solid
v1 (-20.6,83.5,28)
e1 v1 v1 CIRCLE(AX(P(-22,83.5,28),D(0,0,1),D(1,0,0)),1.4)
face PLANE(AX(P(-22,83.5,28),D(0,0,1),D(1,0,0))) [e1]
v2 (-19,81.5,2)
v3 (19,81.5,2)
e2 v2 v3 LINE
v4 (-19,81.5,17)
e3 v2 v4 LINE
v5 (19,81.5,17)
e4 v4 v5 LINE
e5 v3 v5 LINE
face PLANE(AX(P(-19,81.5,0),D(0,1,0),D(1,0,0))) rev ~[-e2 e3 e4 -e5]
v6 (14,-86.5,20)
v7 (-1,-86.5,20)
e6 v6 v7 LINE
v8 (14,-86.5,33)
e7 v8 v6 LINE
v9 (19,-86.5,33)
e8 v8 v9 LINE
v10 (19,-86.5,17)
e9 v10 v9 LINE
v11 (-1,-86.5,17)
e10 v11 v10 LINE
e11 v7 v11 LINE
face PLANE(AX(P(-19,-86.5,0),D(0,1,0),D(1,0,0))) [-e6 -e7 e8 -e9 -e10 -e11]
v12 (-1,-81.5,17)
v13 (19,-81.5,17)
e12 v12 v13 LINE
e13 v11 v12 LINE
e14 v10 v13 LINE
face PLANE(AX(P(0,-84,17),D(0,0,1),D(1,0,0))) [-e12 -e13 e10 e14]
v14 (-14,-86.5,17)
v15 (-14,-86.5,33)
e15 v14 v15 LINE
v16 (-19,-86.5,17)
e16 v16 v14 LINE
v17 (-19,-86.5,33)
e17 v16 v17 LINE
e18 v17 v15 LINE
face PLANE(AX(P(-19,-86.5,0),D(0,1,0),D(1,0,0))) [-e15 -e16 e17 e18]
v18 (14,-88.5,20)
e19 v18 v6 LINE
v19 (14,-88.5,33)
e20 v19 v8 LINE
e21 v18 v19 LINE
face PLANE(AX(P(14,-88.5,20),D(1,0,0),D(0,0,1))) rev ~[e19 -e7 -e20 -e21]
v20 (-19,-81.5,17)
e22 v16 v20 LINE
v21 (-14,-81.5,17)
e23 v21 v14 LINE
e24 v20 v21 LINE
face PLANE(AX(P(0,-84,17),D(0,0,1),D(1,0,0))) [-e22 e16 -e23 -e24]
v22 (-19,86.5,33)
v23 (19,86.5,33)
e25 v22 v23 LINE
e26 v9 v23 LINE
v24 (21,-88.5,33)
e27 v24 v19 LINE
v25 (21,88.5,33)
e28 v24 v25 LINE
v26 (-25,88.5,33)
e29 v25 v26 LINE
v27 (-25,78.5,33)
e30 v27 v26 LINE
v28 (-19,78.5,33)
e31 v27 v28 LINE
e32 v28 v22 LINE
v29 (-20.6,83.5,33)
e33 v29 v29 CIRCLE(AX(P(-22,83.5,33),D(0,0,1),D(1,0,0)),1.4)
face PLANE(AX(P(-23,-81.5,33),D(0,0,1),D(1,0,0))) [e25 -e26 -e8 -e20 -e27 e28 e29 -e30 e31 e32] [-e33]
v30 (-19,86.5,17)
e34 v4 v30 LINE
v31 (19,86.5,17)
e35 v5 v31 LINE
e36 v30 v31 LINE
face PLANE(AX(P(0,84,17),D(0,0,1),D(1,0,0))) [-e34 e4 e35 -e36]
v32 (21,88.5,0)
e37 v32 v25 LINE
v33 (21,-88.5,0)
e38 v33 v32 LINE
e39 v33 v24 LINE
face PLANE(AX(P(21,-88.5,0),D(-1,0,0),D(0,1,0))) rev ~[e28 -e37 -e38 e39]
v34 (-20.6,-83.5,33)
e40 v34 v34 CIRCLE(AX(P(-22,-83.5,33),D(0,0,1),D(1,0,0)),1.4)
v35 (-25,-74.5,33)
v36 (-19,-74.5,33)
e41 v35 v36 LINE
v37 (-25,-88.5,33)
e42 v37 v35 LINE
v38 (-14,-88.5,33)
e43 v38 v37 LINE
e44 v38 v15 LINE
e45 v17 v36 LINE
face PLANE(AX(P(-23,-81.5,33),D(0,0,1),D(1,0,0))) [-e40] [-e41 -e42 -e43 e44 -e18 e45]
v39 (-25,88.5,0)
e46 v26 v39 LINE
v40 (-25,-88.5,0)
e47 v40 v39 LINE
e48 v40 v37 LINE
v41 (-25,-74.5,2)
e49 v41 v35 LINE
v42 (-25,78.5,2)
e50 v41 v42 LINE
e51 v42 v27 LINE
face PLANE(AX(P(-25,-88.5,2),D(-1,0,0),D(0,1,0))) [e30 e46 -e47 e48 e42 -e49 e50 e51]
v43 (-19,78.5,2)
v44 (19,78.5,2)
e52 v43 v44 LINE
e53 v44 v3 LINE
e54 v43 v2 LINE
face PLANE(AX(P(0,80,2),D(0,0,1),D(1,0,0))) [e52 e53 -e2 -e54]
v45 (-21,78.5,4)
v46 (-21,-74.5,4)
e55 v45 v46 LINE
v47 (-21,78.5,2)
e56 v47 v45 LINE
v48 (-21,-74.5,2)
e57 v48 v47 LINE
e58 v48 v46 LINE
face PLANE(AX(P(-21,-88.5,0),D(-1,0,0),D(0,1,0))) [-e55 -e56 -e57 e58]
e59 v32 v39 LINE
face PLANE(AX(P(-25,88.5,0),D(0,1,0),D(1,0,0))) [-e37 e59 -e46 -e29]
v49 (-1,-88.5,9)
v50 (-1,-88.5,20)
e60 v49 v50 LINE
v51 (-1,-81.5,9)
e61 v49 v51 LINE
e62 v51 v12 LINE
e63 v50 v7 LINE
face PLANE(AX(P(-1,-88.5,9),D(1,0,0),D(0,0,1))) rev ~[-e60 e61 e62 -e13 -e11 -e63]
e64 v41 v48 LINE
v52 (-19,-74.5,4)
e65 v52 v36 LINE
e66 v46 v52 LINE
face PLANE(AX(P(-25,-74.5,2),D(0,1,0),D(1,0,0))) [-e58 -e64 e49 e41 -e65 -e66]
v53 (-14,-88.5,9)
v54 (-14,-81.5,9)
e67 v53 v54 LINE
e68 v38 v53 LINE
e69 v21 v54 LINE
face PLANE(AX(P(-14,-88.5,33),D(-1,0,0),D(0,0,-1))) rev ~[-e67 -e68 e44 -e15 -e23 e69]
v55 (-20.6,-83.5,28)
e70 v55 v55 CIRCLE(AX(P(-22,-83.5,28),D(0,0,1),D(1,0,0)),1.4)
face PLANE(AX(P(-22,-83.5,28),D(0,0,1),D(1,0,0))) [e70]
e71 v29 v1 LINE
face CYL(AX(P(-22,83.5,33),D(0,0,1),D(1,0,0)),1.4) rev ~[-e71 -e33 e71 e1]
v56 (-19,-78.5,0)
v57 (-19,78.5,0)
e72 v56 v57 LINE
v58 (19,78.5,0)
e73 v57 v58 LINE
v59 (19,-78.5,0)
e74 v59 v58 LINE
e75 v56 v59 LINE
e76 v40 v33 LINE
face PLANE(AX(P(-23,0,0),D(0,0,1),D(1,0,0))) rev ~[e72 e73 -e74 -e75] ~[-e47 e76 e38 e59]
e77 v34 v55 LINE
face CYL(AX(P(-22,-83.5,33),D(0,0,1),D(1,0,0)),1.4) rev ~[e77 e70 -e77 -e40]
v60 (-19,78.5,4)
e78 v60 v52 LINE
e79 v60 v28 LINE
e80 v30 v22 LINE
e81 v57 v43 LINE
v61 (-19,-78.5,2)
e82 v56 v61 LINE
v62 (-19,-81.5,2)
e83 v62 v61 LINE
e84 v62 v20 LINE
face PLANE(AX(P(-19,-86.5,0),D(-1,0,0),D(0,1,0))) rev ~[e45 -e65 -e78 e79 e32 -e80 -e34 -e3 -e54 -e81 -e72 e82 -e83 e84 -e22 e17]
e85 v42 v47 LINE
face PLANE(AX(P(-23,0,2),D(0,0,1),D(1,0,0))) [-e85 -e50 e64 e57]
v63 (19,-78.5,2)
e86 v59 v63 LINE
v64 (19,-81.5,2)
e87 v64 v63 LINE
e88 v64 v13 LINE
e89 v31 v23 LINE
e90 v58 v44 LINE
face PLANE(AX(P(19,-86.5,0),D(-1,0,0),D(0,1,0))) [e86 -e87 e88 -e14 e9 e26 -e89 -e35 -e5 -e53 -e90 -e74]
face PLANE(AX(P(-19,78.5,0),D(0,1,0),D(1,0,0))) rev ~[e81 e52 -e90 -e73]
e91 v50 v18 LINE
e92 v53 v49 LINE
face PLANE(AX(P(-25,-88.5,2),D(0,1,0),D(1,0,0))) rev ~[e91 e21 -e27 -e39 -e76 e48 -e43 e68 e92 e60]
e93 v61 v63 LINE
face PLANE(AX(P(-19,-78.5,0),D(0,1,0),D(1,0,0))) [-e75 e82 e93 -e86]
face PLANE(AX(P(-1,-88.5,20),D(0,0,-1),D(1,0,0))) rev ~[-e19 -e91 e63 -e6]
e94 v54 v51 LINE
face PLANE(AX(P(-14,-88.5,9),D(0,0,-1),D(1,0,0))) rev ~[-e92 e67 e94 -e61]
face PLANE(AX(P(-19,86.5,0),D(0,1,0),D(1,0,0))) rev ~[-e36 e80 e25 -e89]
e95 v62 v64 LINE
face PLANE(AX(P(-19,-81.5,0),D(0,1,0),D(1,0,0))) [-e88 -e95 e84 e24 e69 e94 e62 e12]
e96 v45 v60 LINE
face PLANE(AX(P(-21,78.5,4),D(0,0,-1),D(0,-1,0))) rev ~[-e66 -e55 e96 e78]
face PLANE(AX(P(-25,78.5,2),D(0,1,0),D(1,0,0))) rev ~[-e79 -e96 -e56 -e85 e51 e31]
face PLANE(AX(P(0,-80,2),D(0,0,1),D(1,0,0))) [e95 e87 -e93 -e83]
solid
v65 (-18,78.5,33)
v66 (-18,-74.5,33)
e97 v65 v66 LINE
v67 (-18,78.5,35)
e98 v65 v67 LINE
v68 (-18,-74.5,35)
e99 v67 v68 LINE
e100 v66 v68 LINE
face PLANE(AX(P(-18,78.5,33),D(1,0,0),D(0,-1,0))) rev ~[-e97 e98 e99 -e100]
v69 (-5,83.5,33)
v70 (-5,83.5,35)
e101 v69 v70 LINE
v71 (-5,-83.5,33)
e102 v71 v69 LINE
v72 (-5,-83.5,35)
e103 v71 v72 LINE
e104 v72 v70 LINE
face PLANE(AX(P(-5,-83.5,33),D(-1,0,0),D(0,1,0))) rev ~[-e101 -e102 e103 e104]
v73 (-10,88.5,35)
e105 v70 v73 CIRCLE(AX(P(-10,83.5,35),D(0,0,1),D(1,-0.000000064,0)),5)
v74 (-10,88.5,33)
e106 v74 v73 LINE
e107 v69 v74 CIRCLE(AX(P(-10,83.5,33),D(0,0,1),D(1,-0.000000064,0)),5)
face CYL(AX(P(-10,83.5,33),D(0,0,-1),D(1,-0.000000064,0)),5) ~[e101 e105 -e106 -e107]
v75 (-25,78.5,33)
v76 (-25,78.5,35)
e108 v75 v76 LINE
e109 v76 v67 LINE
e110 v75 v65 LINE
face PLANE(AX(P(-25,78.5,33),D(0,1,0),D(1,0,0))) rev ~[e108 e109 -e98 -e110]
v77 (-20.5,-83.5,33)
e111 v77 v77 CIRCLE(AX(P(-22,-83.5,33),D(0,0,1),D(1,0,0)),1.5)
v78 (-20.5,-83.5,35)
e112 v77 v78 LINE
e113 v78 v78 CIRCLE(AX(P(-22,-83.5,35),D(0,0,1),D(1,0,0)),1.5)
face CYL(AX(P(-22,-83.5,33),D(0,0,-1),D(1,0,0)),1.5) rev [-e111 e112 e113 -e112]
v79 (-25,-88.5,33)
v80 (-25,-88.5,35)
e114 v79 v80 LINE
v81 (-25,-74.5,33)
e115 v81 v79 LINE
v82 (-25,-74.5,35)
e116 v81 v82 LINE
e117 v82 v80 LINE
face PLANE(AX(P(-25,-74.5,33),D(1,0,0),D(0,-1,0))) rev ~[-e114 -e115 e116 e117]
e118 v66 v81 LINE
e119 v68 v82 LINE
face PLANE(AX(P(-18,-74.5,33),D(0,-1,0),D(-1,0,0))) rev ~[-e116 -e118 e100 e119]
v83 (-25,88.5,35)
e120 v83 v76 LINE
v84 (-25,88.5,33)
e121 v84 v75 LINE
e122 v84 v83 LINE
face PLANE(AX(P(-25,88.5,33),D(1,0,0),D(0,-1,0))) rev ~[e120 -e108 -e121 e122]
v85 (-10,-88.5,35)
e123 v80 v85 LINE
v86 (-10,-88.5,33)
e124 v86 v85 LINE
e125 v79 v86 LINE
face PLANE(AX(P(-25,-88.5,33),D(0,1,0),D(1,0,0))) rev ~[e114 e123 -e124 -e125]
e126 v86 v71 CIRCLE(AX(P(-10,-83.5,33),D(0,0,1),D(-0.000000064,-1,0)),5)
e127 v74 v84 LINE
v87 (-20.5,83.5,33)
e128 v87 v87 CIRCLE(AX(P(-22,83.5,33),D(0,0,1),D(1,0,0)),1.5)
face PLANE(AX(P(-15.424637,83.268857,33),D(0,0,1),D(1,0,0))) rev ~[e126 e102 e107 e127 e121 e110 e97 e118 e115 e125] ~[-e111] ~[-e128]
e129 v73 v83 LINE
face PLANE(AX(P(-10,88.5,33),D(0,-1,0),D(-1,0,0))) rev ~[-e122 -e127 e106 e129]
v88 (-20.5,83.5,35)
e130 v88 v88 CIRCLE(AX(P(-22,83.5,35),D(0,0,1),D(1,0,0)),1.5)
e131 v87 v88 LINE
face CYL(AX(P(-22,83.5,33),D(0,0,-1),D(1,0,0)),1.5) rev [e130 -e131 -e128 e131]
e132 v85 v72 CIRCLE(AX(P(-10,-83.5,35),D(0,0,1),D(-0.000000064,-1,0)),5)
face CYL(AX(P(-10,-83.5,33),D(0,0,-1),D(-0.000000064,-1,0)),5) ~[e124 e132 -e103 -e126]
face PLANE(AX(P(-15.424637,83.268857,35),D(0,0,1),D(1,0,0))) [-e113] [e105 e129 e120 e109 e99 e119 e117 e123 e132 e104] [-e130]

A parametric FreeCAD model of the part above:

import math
import FreeCAD as App
import Part
import Sketcher

V = App.Vector


def add_polygon(sketch, points):
    """Adds a closed chain of lines whose ends are joined by coincident constraints."""
    first, n = sketch.GeometryCount, len(points)
    for a, b in zip(points, points[1:] + points[:1]):
        sketch.addGeometry(Part.LineSegment(App.Vector(*a, 0), App.Vector(*b, 0)), False)
    for i in range(n):
        sketch.addConstraint(Sketcher.Constraint("Coincident", first + i, 2, first + (i + 1) % n, 1))

doc = App.newDocument("Part")
body = doc.addObject("PartDesign::Body", "Body")

# Sketch on XY plane
sketch1 = body.newObject("Sketcher::SketchObject", "Sketch")
sketch1.AttachmentSupport = (doc.getObject("XY_Plane"), [""])
sketch1.MapMode = "FlatFace"
add_polygon(sketch1, [(-21, 88), (-21, -88), (21, -88), (21, 88)])  # lines 0-3
add_polygon(sketch1, [(19, -86), (-19, -86), (-19, 86), (19, 86)])  # lines 4-7
sketch1.addConstraint(Sketcher.Constraint("Vertical", 0))
sketch1.addConstraint(Sketcher.Constraint("Horizontal", 1))
sketch1.addConstraint(Sketcher.Constraint("Vertical", 2))
sketch1.addConstraint(Sketcher.Constraint("Horizontal", 3))
sketch1.addConstraint(Sketcher.Constraint("Horizontal", 4))
sketch1.addConstraint(Sketcher.Constraint("Vertical", 5))
sketch1.addConstraint(Sketcher.Constraint("Horizontal", 6))
sketch1.addConstraint(Sketcher.Constraint("Vertical", 7))
sketch1.addConstraint(Sketcher.Constraint("Symmetric", 0, 2, 2, 2, -1, 1))
sketch1.addConstraint(Sketcher.Constraint("Symmetric", 4, 2, 6, 2, -1, 1))
sketch1.addConstraint(Sketcher.Constraint("DistanceX", 1, 1, 1, 2, 42.0))
sketch1.addConstraint(Sketcher.Constraint("DistanceX", 4, 2, 4, 1, 38.0))
sketch1.addConstraint(Sketcher.Constraint("DistanceY", 0, 2, 0, 1, 177.0))
sketch1.addConstraint(Sketcher.Constraint("DistanceY", 5, 1, 5, 2, 173.0))
pad1 = body.newObject("PartDesign::Pad", "Pad")
pad1.Profile = sketch1
pad1.Length = 33

# Sketch on YZ plane
sketch2 = body.newObject("Sketcher::SketchObject", "Sketch001")
sketch2.AttachmentSupport = (doc.getObject("YZ_Plane"), [""])
sketch2.MapMode = "FlatFace"
sketch2.AttachmentOffset = App.Placement(V(0, 0, -21), App.Rotation())
add_polygon(sketch2, [(78, 33), (78, 4), (-74, 4), (-74, 33)])  # lines 0-3
sketch2.addConstraint(Sketcher.Constraint("Vertical", 0))
sketch2.addConstraint(Sketcher.Constraint("Horizontal", 1))
sketch2.addConstraint(Sketcher.Constraint("Vertical", 2))
sketch2.addConstraint(Sketcher.Constraint("Horizontal", 3))
sketch2.addConstraint(Sketcher.Constraint("DistanceX", 1, 2, 1, 1, 153.0))
sketch2.addConstraint(Sketcher.Constraint("DistanceY", 0, 2, 0, 1, 29.0))
sketch2.addConstraint(Sketcher.Constraint("DistanceY", -1, 1, 0, 2, 4.0))
sketch2.addConstraint(Sketcher.Constraint("DistanceX", -1, 1, 0, 2, 78.5))
pocket1 = body.newObject("PartDesign::Pocket", "Pocket")
pocket1.Profile = sketch2
pocket1.Length = 5.8
pocket1.Reversed = True

# Sketch on XY plane
sketch3 = body.newObject("Sketcher::SketchObject", "Sketch002")
sketch3.AttachmentSupport = (doc.getObject("XY_Plane"), [""])
sketch3.MapMode = "FlatFace"
add_polygon(sketch3, [(-19, 86), (-19, 82), (19, 82), (19, 86)])  # lines 0-3
add_polygon(sketch3, [(-19, -82), (-19, -86), (19, -86), (19, -82)])  # lines 4-7
sketch3.addConstraint(Sketcher.Constraint("Vertical", 0))
sketch3.addConstraint(Sketcher.Constraint("Horizontal", 1))
sketch3.addConstraint(Sketcher.Constraint("Vertical", 2))
sketch3.addConstraint(Sketcher.Constraint("Horizontal", 3))
sketch3.addConstraint(Sketcher.Constraint("Vertical", 4))
sketch3.addConstraint(Sketcher.Constraint("Horizontal", 5))
sketch3.addConstraint(Sketcher.Constraint("Vertical", 6))
sketch3.addConstraint(Sketcher.Constraint("Horizontal", 7))
sketch3.addConstraint(Sketcher.Constraint("Symmetric", 2, 2, 4, 2, -1, 1))
sketch3.addConstraint(Sketcher.Constraint("Symmetric", 0, 2, 6, 2, -1, 1))
sketch3.addConstraint(Sketcher.Constraint("Vertical", 3, 2, 4, 2))
sketch3.addConstraint(Sketcher.Constraint("DistanceX", 1, 1, 1, 2, 38.0))
sketch3.addConstraint(Sketcher.Constraint("DistanceY", 0, 2, 0, 1, 5.0))
sketch3.addConstraint(Sketcher.Constraint("DistanceY", 4, 2, 0, 2, 168.0))
pad2 = body.newObject("PartDesign::Pad", "Pad001")
pad2.Profile = sketch3
pad2.Length = 17

# Sketch on XY plane
sketch4 = body.newObject("Sketcher::SketchObject", "Sketch003")
sketch4.AttachmentSupport = (doc.getObject("XY_Plane"), [""])
sketch4.MapMode = "FlatFace"
add_polygon(sketch4, [(-25, 88.5), (-25, -88.5), (-21, -88.5), (-21, 88.5)])  # lines 0-3
add_polygon(sketch4, [(-19, 81.5), (-19, 78.5), (19, 78.5), (19, 81.5)])  # lines 4-7
add_polygon(sketch4, [(-19, -78.5), (-19, -81.5), (19, -81.5), (19, -78.5)])  # lines 8-11
sketch4.addConstraint(Sketcher.Constraint("Vertical", 0))
sketch4.addConstraint(Sketcher.Constraint("Horizontal", 1))
sketch4.addConstraint(Sketcher.Constraint("Vertical", 2))
sketch4.addConstraint(Sketcher.Constraint("Horizontal", 3))
sketch4.addConstraint(Sketcher.Constraint("Vertical", 4))
sketch4.addConstraint(Sketcher.Constraint("Horizontal", 5))
sketch4.addConstraint(Sketcher.Constraint("Vertical", 6))
sketch4.addConstraint(Sketcher.Constraint("Horizontal", 7))
sketch4.addConstraint(Sketcher.Constraint("Vertical", 8))
sketch4.addConstraint(Sketcher.Constraint("Horizontal", 9))
sketch4.addConstraint(Sketcher.Constraint("Vertical", 10))
sketch4.addConstraint(Sketcher.Constraint("Horizontal", 11))
sketch4.addConstraint(Sketcher.Constraint("Symmetric", 6, 2, 8, 2, -1, 1))
sketch4.addConstraint(Sketcher.Constraint("Symmetric", 4, 2, 10, 2, -1, 1))
sketch4.addConstraint(Sketcher.Constraint("Vertical", 7, 2, 8, 2))
sketch4.addConstraint(Sketcher.Constraint("DistanceX", 1, 1, 1, 2, 4.0))
sketch4.addConstraint(Sketcher.Constraint("DistanceX", 5, 1, 5, 2, 38.0))
sketch4.addConstraint(Sketcher.Constraint("DistanceY", 0, 2, 0, 1, 177.0))
sketch4.addConstraint(Sketcher.Constraint("DistanceY", 4, 2, 4, 1, 3.0))
sketch4.addConstraint(Sketcher.Constraint("DistanceX", 0, 2, -1, 1, 25.0))
sketch4.addConstraint(Sketcher.Constraint("DistanceY", 4, 2, 2, 2, 10.0))
sketch4.addConstraint(Sketcher.Constraint("DistanceY", 1, 2, 8, 2, 7.0))
pad3 = body.newObject("PartDesign::Pad", "Pad002")
pad3.Profile = sketch4
pad3.Length = 2

# Sketch on XY plane
sketch5 = body.newObject("Sketcher::SketchObject", "Sketch004")
sketch5.AttachmentSupport = (doc.getObject("XY_Plane"), [""])
sketch5.MapMode = "FlatFace"
sketch5.AttachmentOffset = App.Placement(V(0, 0, 2), App.Rotation())
add_polygon(sketch5, [(-25, -74.5), (-25, -88.5), (-21, -88.5), (-21, -74.5)])  # lines 0-3
add_polygon(sketch5, [(-25, 88.5), (-25, 78.5), (-21, 78.5), (-21, 88.5)])  # lines 4-7
sketch5.addConstraint(Sketcher.Constraint("Vertical", 0))
sketch5.addConstraint(Sketcher.Constraint("Horizontal", 1))
sketch5.addConstraint(Sketcher.Constraint("Vertical", 2))
sketch5.addConstraint(Sketcher.Constraint("Horizontal", 3))
sketch5.addConstraint(Sketcher.Constraint("Vertical", 4))
sketch5.addConstraint(Sketcher.Constraint("Horizontal", 5))
sketch5.addConstraint(Sketcher.Constraint("Vertical", 6))
sketch5.addConstraint(Sketcher.Constraint("Horizontal", 7))
sketch5.addConstraint(Sketcher.Constraint("Symmetric", 1, 2, 6, 2, -1))
sketch5.addConstraint(Sketcher.Constraint("Vertical", 3, 2, 4, 2))
sketch5.addConstraint(Sketcher.Constraint("DistanceX", 1, 1, 1, 2, 4.0))
sketch5.addConstraint(Sketcher.Constraint("DistanceY", 0, 2, 0, 1, 14.0))
sketch5.addConstraint(Sketcher.Constraint("DistanceY", 4, 2, 4, 1, 10.0))
sketch5.addConstraint(Sketcher.Constraint("DistanceX", 0, 2, -1, 1, 25.0))
sketch5.addConstraint(Sketcher.Constraint("DistanceY", 3, 2, 4, 2, 153.0))
pad4 = body.newObject("PartDesign::Pad", "Pad003")
pad4.Profile = sketch5
pad4.Length = 31

# Sketch on XY plane
sketch6 = body.newObject("Sketcher::SketchObject", "Sketch005")
sketch6.AttachmentSupport = (doc.getObject("XY_Plane"), [""])
sketch6.MapMode = "FlatFace"
sketch6.AttachmentOffset = App.Placement(V(0, 0, 33), App.Rotation())
sketch6.addGeometry(Part.Circle(V(-22, -83.5, 0), V(0, 0, 1), 1.4), False)
sketch6.addGeometry(Part.Circle(V(-22, 83.5, 0), V(0, 0, 1), 1.4), False)
sketch6.addConstraint(Sketcher.Constraint("Equal", 0, 1))
sketch6.addConstraint(Sketcher.Constraint("Symmetric", 0, 3, 1, 3, -1))
sketch6.addConstraint(Sketcher.Constraint("Diameter", 0, 2.8))
sketch6.addConstraint(Sketcher.Constraint("DistanceX", 0, 3, -1, 1, 22.0))
sketch6.addConstraint(Sketcher.Constraint("DistanceY", 0, 3, 1, 3, 167.0))
pocket2 = body.newObject("PartDesign::Pocket", "Pocket001")
pocket2.Profile = sketch6
pocket2.Length = 5

# Sketch on XZ plane
sketch7 = body.newObject("Sketcher::SketchObject", "Sketch006")
sketch7.AttachmentSupport = (doc.getObject("XZ_Plane"), [""])
sketch7.MapMode = "FlatFace"
sketch7.AttachmentOffset = App.Placement(V(0, 0, 88.5), App.Rotation())
add_polygon(sketch7, [(14, 20), (14, 33), (-14, 33), (-14, 9), (-1, 9), (-1, 20)])  # lines 0-5
sketch7.addConstraint(Sketcher.Constraint("Vertical", 0))
sketch7.addConstraint(Sketcher.Constraint("Horizontal", 1))
sketch7.addConstraint(Sketcher.Constraint("Vertical", 2))
sketch7.addConstraint(Sketcher.Constraint("Horizontal", 3))
sketch7.addConstraint(Sketcher.Constraint("Vertical", 4))
sketch7.addConstraint(Sketcher.Constraint("Horizontal", 5))
sketch7.addConstraint(Sketcher.Constraint("Equal", 3, 0))
sketch7.addConstraint(Sketcher.Constraint("DistanceX", 1, 2, 1, 1, 28.0))
sketch7.addConstraint(Sketcher.Constraint("DistanceX", 3, 1, 3, 2, 13.0))
sketch7.addConstraint(Sketcher.Constraint("DistanceY", 2, 2, 2, 1, 24.0))
sketch7.addConstraint(Sketcher.Constraint("DistanceX", -1, 1, 0, 2, 14.0))
sketch7.addConstraint(Sketcher.Constraint("DistanceY", -1, 1, 0, 2, 33.0))
pocket3 = body.newObject("PartDesign::Pocket", "Pocket002")
pocket3.Profile = sketch7
pocket3.Length = 7
body2 = doc.addObject("PartDesign::Body", "Body001")

# Sketch on XY plane
sketch8 = body2.newObject("Sketcher::SketchObject", "Sketch007")
sketch8.AttachmentSupport = (doc.getObject("XY_Plane001"), [""])
sketch8.MapMode = "FlatFace"
sketch8.AttachmentOffset = App.Placement(V(0, 0, 33), App.Rotation())
sketch8.addGeometry(Part.LineSegment(V(-10, 88.5, 0), V(-25, 88.5, 0)), False)
sketch8.addGeometry(Part.LineSegment(V(-25, 88.5, 0), V(-25, 78.5, 0)), False)
sketch8.addGeometry(Part.LineSegment(V(-25, 78.5, 0), V(-18, 78.5, 0)), False)
sketch8.addGeometry(Part.LineSegment(V(-18, 78.5, 0), V(-18, -74.5, 0)), False)
sketch8.addGeometry(Part.LineSegment(V(-18, -74.5, 0), V(-25, -74.5, 0)), False)
sketch8.addGeometry(Part.LineSegment(V(-25, -74.5, 0), V(-25, -88.5, 0)), False)
sketch8.addGeometry(Part.LineSegment(V(-25, -88.5, 0), V(-10, -88.5, 0)), False)
sketch8.addGeometry(Part.ArcOfCircle(Part.Circle(V(-10, -83.5, 0), V(0, 0, 1), 5), math.radians(-90), math.radians(0)), False)
sketch8.addGeometry(Part.LineSegment(V(-5, -83.5, 0), V(-5, 83.5, 0)), False)
sketch8.addGeometry(Part.ArcOfCircle(Part.Circle(V(-10, 83.5, 0), V(0, 0, 1), 5), math.radians(0), math.radians(90)), False)
sketch8.addGeometry(Part.Circle(V(-22, -83.5, 0), V(0, 0, 1), 1.5), False)
sketch8.addGeometry(Part.Circle(V(-22, 83.5, 0), V(0, 0, 1), 1.5), False)
sketch8.addConstraint(Sketcher.Constraint("Coincident", 0, 2, 1, 1))
sketch8.addConstraint(Sketcher.Constraint("Coincident", 1, 2, 2, 1))
sketch8.addConstraint(Sketcher.Constraint("Coincident", 2, 2, 3, 1))
sketch8.addConstraint(Sketcher.Constraint("Coincident", 3, 2, 4, 1))
sketch8.addConstraint(Sketcher.Constraint("Coincident", 4, 2, 5, 1))
sketch8.addConstraint(Sketcher.Constraint("Coincident", 5, 2, 6, 1))
sketch8.addConstraint(Sketcher.Constraint("Tangent", 6, 2, 7, 1))
sketch8.addConstraint(Sketcher.Constraint("Tangent", 7, 2, 8, 1))
sketch8.addConstraint(Sketcher.Constraint("Tangent", 8, 2, 9, 1))
sketch8.addConstraint(Sketcher.Constraint("Tangent", 9, 2, 0, 1))
sketch8.addConstraint(Sketcher.Constraint("Horizontal", 0))
sketch8.addConstraint(Sketcher.Constraint("Vertical", 1))
sketch8.addConstraint(Sketcher.Constraint("Horizontal", 2))
sketch8.addConstraint(Sketcher.Constraint("Vertical", 3))
sketch8.addConstraint(Sketcher.Constraint("Horizontal", 4))
sketch8.addConstraint(Sketcher.Constraint("Vertical", 5))
sketch8.addConstraint(Sketcher.Constraint("Horizontal", 6))
sketch8.addConstraint(Sketcher.Constraint("Vertical", 8))
sketch8.addConstraint(Sketcher.Constraint("Equal", 7, 9))
sketch8.addConstraint(Sketcher.Constraint("Equal", 10, 11))
sketch8.addConstraint(Sketcher.Constraint("Symmetric", 10, 3, 11, 3, -1))
sketch8.addConstraint(Sketcher.Constraint("Symmetric", 0, 2, 5, 2, -1))
sketch8.addConstraint(Sketcher.Constraint("Horizontal", 7, 3, 10, 3))
sketch8.addConstraint(Sketcher.Constraint("Diameter", 10, 3.0))
sketch8.addConstraint(Sketcher.Constraint("Radius", 7, 5.0))
sketch8.addConstraint(Sketcher.Constraint("DistanceX", 0, 2, 0, 1, 15.0))
sketch8.addConstraint(Sketcher.Constraint("DistanceX", 2, 1, 2, 2, 7.0))
sketch8.addConstraint(Sketcher.Constraint("DistanceY", 1, 2, 1, 1, 10.0))
sketch8.addConstraint(Sketcher.Constraint("DistanceY", 3, 2, 3, 1, 153.0))
sketch8.addConstraint(Sketcher.Constraint("DistanceY", 5, 2, 5, 1, 14.0))
sketch8.addConstraint(Sketcher.Constraint("DistanceX", 7, 3, -1, 1, 10.0))
sketch8.addConstraint(Sketcher.Constraint("DistanceX", 10, 3, -1, 1, 22.0))
pad5 = body2.newObject("PartDesign::Pad", "Pad004")
pad5.Profile = sketch8
pad5.Length = 2

doc.recompute()
